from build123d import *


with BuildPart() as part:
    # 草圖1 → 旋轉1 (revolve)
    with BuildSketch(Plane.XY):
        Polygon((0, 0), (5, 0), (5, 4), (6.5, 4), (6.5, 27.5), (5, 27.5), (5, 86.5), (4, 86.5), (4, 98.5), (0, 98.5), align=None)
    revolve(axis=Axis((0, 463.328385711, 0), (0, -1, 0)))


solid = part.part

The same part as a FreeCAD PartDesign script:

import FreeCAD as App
import Part
import Sketcher
from FreeCAD import Vector

doc = App.newDocument("Part")
body = doc.addObject("PartDesign::Body", "Body")

# Sketch on XY plane
sketch1 = body.newObject("Sketcher::SketchObject", "Sketch")
sketch1.AttachmentSupport = (doc.getObject("XY_Plane"), [""])
sketch1.MapMode = "FlatFace"
sketch1.addGeometry([
    Part.LineSegment(Vector(0, 0, 0), Vector(5, 0, 0)),  # 0
    Part.LineSegment(Vector(5, 0, 0), Vector(5, 4, 0)),  # 1
    Part.LineSegment(Vector(5, 4, 0), Vector(6.5, 4, 0)),  # 2
    Part.LineSegment(Vector(6.5, 4, 0), Vector(6.5, 27.5, 0)),  # 3
    Part.LineSegment(Vector(6.5, 27.5, 0), Vector(5, 27.5, 0)),  # 4
    Part.LineSegment(Vector(5, 27.5, 0), Vector(5, 86.5, 0)),  # 5
    Part.LineSegment(Vector(5, 86.5, 0), Vector(4, 86.5, 0)),  # 6
    Part.LineSegment(Vector(4, 86.5, 0), Vector(4, 98.5, 0)),  # 7
    Part.LineSegment(Vector(4, 98.5, 0), Vector(0, 98.5, 0)),  # 8
    Part.LineSegment(Vector(0, 98.5, 0), Vector(0, 0, 0)),  # 9
], False)
sketch1.addConstraint([
    Sketcher.Constraint("Coincident", 0, 2, 1, 1),
    Sketcher.Constraint("Coincident", 1, 2, 2, 1),
    Sketcher.Constraint("Coincident", 2, 2, 3, 1),
    Sketcher.Constraint("Coincident", 3, 2, 4, 1),
    Sketcher.Constraint("Coincident", 4, 2, 5, 1),
    Sketcher.Constraint("Coincident", 5, 2, 6, 1),
    Sketcher.Constraint("Coincident", 6, 2, 7, 1),
    Sketcher.Constraint("Coincident", 7, 2, 8, 1),
    Sketcher.Constraint("Coincident", 8, 2, 9, 1),
    Sketcher.Constraint("Coincident", 9, 2, 0, 1),
    Sketcher.Constraint("Horizontal", 0),
    Sketcher.Constraint("Vertical", 1),
    Sketcher.Constraint("Horizontal", 2),
    Sketcher.Constraint("Vertical", 3),
    Sketcher.Constraint("Horizontal", 4),
    Sketcher.Constraint("Vertical", 5),
    Sketcher.Constraint("Horizontal", 6),
    Sketcher.Constraint("Vertical", 7),
    Sketcher.Constraint("Horizontal", 8),
    Sketcher.Constraint("Vertical", 9),
    Sketcher.Constraint("Coincident", 9, 2, -1, 1),
    Sketcher.Constraint("Vertical", 1, 2, 4, 2),
    Sketcher.Constraint("Equal", 8, 1),
    Sketcher.Constraint("DistanceX", 0, 1, 0, 2, 5.0),
    Sketcher.Constraint("DistanceX", 6, 2, 6, 1, 1.0),
    Sketcher.Constraint("DistanceY", 5, 1, 5, 2, 59.0),
    Sketcher.Constraint("DistanceY", 7, 1, 7, 2, 12.0),
    Sketcher.Constraint("DistanceX", 2, 1, 2, 2, 1.5),
    Sketcher.Constraint("DistanceY", 3, 1, 3, 2, 23.5),
])
revolution = body.newObject("PartDesign::Revolution", "Revolution")
revolution.Profile = sketch1
revolution.ReferenceAxis = (sketch1, ["V_Axis"])
revolution.Angle = 360

doc.recompute()
